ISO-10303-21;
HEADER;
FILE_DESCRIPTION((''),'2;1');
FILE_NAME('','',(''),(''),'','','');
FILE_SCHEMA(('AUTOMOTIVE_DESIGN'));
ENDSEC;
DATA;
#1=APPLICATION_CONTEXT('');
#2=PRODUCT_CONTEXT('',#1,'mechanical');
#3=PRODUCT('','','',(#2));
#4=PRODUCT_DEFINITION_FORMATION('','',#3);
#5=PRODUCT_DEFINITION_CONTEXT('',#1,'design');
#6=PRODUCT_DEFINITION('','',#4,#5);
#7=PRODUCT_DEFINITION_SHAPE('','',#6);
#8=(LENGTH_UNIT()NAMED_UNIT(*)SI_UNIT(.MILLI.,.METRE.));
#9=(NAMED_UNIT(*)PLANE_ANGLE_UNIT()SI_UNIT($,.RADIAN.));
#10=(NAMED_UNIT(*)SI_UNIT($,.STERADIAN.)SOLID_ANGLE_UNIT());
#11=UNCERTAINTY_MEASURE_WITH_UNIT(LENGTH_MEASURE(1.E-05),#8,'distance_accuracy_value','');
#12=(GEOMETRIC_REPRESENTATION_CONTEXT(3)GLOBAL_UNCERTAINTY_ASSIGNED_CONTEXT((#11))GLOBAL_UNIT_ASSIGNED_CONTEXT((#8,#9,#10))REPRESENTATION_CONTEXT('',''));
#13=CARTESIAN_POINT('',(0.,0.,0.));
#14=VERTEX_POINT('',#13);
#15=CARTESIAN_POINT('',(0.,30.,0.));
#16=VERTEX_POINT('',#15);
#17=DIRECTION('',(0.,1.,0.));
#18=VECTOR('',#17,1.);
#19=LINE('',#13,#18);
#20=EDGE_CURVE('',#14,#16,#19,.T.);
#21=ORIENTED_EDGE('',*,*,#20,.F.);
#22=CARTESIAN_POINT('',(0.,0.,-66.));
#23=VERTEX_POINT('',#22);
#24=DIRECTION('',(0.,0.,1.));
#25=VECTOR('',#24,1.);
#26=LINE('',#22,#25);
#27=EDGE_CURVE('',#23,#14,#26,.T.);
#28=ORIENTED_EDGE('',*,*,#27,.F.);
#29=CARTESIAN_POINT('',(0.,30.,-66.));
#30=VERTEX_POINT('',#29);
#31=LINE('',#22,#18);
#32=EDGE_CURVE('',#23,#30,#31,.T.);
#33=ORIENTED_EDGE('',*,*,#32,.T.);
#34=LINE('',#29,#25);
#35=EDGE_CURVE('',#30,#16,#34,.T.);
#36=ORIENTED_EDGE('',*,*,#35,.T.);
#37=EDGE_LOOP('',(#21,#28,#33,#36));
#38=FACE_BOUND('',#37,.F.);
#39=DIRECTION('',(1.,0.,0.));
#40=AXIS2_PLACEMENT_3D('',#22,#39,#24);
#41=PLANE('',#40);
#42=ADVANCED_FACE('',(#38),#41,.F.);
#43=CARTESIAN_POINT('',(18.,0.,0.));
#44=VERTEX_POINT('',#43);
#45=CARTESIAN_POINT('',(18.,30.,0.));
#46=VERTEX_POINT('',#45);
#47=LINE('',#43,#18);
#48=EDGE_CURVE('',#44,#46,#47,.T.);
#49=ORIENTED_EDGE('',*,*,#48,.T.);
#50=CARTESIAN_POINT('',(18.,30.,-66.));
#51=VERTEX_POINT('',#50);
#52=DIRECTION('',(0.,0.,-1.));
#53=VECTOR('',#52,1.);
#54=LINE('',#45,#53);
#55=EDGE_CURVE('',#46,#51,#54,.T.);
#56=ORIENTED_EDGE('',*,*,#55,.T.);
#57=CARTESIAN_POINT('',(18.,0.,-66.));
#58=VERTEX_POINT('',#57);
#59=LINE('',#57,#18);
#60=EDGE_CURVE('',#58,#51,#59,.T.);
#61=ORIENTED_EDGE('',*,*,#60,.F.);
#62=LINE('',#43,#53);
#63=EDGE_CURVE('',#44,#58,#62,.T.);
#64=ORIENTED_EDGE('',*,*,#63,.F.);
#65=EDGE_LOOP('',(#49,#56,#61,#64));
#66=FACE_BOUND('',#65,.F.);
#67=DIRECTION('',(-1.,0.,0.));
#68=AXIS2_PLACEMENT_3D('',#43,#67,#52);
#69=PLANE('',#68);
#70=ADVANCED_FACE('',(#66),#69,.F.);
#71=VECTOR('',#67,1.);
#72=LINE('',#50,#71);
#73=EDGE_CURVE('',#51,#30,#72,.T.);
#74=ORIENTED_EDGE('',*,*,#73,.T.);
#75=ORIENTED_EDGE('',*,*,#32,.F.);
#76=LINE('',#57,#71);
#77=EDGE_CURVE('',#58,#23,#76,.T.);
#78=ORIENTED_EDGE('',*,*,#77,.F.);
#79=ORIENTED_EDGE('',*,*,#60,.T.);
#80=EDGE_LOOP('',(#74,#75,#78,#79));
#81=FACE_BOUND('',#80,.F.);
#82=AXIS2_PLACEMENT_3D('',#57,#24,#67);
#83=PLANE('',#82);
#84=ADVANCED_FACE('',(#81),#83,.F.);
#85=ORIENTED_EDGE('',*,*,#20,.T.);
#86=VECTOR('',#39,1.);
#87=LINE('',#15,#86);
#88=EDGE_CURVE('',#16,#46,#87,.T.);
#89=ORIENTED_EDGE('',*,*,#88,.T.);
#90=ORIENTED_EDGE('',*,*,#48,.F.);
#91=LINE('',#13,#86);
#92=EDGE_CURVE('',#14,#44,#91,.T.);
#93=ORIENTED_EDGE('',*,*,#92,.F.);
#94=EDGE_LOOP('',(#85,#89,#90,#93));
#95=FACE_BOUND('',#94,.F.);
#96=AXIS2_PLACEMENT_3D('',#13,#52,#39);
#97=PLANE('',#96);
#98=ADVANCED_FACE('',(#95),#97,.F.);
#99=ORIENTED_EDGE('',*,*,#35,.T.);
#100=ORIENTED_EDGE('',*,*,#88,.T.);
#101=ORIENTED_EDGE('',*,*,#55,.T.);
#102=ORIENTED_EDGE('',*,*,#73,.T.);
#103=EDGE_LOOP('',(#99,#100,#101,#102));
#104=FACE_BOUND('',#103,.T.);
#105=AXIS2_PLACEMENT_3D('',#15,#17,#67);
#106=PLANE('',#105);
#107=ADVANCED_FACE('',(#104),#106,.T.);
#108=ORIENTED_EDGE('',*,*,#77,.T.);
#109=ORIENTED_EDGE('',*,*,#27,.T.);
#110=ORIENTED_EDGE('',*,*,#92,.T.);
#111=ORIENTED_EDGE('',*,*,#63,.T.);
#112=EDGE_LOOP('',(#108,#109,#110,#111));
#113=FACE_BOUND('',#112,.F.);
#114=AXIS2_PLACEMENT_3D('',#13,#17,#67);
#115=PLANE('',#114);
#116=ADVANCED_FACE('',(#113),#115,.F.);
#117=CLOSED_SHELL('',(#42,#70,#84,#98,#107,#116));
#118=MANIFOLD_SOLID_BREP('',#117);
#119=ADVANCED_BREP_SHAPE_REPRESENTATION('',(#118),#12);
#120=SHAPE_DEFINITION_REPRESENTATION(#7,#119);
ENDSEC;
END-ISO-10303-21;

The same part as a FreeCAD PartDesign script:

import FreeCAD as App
import Part
import Sketcher
from FreeCAD import Vector

doc = App.newDocument("Part")
params = doc.addObject("Spreadsheet::Sheet", "Params")
for row, (alias, value) in enumerate([
    ("sketch1_width", "18 mm"),
    ("sketch1_height", "66 mm"),
    ("pad1_length", "30 mm"),
], start=1):
    params.set(f"A{row}", alias)
    params.set(f"B{row}", "=" + value)
    params.setAlias(f"B{row}", alias)

body = doc.addObject("PartDesign::Body", "Body")

sketch1 = doc.addObject("Sketcher::SketchObject", "Sketch")
body.addObject(sketch1)
sketch1.AttachmentSupport = (doc.XZ_Plane, [""])
sketch1.MapMode = "FlatFace"
sketch1.addGeometry([
    Part.LineSegment(Vector(0, -66, 0), Vector(0, 0, 0)),
    Part.LineSegment(Vector(0, 0, 0), Vector(18, 0, 0)),
    Part.LineSegment(Vector(18, 0, 0), Vector(18, -66, 0)),
    Part.LineSegment(Vector(18, -66, 0), Vector(0, -66, 0)),
], False)
sketch1.addConstraint([
    Sketcher.Constraint("Coincident", 0, 2, 1, 1),
    Sketcher.Constraint("Coincident", 1, 2, 2, 1),
    Sketcher.Constraint("Coincident", 2, 2, 3, 1),
    Sketcher.Constraint("Coincident", 3, 2, 0, 1),
    Sketcher.Constraint("Vertical", 0),
    Sketcher.Constraint("Horizontal", 1),
    Sketcher.Constraint("Vertical", 2),
    Sketcher.Constraint("Horizontal", 3),
    Sketcher.Constraint("Coincident", 0, 2, -1, 1),
    Sketcher.Constraint("DistanceX", 1, 1, 1, 2, 18.0),
    Sketcher.Constraint("DistanceY", 0, 1, 0, 2, 66.0),
])
sketch1.setExpression("Constraints[9]", "Params.sketch1_width")
sketch1.setExpression("Constraints[10]", "Params.sketch1_height")
pad1 = doc.addObject("PartDesign::Pad", "Pad")
body.addObject(pad1)
pad1.Profile = sketch1
pad1.setExpression("Length", "Params.pad1_length")
pad1.Reversed = True

doc.recompute()
